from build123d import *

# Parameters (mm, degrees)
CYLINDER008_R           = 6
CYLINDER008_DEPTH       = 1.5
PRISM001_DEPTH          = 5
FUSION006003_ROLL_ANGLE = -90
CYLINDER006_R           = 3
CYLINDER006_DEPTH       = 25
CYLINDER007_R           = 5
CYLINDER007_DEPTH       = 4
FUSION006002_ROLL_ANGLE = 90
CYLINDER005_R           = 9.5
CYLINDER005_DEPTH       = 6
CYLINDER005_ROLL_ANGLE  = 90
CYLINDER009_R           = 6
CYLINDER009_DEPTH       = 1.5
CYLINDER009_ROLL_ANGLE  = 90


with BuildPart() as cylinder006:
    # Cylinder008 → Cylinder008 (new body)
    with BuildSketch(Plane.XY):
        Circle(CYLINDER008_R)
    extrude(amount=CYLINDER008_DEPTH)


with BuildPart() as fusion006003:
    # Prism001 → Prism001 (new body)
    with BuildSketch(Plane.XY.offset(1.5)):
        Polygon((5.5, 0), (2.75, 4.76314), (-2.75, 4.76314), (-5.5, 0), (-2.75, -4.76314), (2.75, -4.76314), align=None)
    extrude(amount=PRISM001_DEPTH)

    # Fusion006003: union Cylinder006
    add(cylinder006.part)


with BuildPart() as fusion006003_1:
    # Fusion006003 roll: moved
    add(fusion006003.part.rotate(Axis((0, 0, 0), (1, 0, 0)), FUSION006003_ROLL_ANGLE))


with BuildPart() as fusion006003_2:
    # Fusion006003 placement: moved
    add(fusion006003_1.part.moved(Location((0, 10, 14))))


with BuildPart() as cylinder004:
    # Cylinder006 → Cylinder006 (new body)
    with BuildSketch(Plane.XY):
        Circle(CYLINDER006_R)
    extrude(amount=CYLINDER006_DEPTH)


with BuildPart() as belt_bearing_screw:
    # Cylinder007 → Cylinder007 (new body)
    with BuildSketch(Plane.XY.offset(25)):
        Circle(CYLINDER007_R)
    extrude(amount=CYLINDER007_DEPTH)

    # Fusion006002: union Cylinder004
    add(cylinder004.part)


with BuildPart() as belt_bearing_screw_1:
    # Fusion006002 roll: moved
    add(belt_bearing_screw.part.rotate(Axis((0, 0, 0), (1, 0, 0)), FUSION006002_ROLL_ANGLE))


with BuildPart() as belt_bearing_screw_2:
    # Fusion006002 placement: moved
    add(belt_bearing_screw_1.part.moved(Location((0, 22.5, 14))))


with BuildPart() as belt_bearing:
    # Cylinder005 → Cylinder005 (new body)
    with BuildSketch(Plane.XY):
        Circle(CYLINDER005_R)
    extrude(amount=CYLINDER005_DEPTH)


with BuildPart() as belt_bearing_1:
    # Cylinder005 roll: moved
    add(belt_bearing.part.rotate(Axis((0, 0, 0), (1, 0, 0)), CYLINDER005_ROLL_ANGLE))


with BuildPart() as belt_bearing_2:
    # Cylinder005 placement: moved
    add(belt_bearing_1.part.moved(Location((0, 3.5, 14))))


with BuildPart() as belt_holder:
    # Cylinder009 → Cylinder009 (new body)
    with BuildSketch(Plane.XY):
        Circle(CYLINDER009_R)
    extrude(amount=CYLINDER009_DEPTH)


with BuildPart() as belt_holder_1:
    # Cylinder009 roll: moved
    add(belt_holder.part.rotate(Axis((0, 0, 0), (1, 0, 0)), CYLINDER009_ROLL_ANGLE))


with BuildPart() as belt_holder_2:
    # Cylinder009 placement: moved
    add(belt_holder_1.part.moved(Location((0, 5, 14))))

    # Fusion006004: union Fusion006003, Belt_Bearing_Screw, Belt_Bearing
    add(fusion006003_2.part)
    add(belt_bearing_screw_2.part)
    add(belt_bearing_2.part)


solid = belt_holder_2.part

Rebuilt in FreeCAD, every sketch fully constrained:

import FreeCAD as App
import Part
import Sketcher
Q = App.Units.Quantity


def add_polygon(sketch, points):
    """Adds a closed chain of lines whose ends are joined by coincident constraints."""
    first, n = sketch.GeometryCount, len(points)
    for a, b in zip(points, points[1:] + points[:1]):
        sketch.addGeometry(Part.LineSegment(App.Vector(*a, 0), App.Vector(*b, 0)), False)
    for i in range(n):
        sketch.addConstraint(Sketcher.Constraint("Coincident", first + i, 2, first + (i + 1) % n, 1))

doc = App.newDocument("Part")
body = doc.addObject("PartDesign::Body", "Body")

# Sketch on XY plane
sketch1 = body.newObject("Sketcher::SketchObject", "Sketch")
sketch1.AttachmentSupport = (doc.getObject("XY_Plane"), [""])
sketch1.MapMode = "FlatFace"
sketch1.addGeometry(Part.Circle(App.Vector(0, 0, 0), App.Vector(0, 0, 1), 6), False)
sketch1.addConstraint(Sketcher.Constraint("Coincident", 0, 3, -1, 1))
sketch1.addConstraint(Sketcher.Constraint("Diameter", 0, Q("12 mm")))
pad1 = body.newObject("PartDesign::Pad", "Pad")
pad1.Profile = sketch1
pad1.Length = 1.5
body2 = doc.addObject("PartDesign::Body", "Body001")

# Sketch on XY plane
sketch2 = body2.newObject("Sketcher::SketchObject", "Sketch001")
sketch2.AttachmentSupport = (doc.getObject("XY_Plane001"), [""])
sketch2.MapMode = "FlatFace"
sketch2.AttachmentOffset = App.Placement(App.Vector(0, 0, 1.5), App.Rotation())
add_polygon(sketch2, [(6, 0), (3, 5), (-3, 5), (-6, 0), (-3, -5), (3, -5)])  # lines 0-5
sketch2.addConstraint(Sketcher.Constraint("Horizontal", 1))
sketch2.addConstraint(Sketcher.Constraint("Horizontal", 4))
sketch2.addConstraint(Sketcher.Constraint("Symmetric", 0, 2, 3, 2, -1, 1))
sketch2.addConstraint(Sketcher.Constraint("Symmetric", 2, 2, 5, 2, -1, 1))
sketch2.addConstraint(Sketcher.Constraint("PointOnObject", 2, 2, -1))
sketch2.addConstraint(Sketcher.Constraint("Parallel", 2, 5))
sketch2.addConstraint(Sketcher.Constraint("Vertical", 1, 2, 3, 2))
sketch2.addConstraint(Sketcher.Constraint("Angle", 0, Q("119.999999 deg")))
sketch2.addConstraint(Sketcher.Constraint("DistanceX", 1, 2, 1, 1, Q("5.5 mm")))
sketch2.addConstraint(Sketcher.Constraint("DistanceX", 2, 2, 5, 2, Q("11 mm")))
pad2 = body2.newObject("PartDesign::Pad", "Pad001")
pad2.Profile = sketch2
pad2.Length = 5
doc.recompute()

boolean = body2.newObject("PartDesign::Boolean", "Boolean")
boolean.Type = "Fuse"
boolean.addObjects([body])
body3 = doc.addObject("PartDesign::Body", "Body002")
doc.recompute()

body2.Placement = App.Placement(App.Vector(0, 0, 0), App.Rotation(App.Vector(1, 0, 0), 270))
boolean2 = body3.newObject("PartDesign::Boolean", "Boolean001")
boolean2.Type = "Fuse"
boolean2.addObjects([body2])
body4 = doc.addObject("PartDesign::Body", "Body003")
doc.recompute()

body3.Placement = App.Placement(App.Vector(0, 10, 14), App.Rotation(App.Vector(0, 0, 1), 0))
boolean3 = body4.newObject("PartDesign::Boolean", "Boolean002")
boolean3.Type = "Fuse"
boolean3.addObjects([body3])
body5 = doc.addObject("PartDesign::Body", "Body004")

# Sketch on XY plane
sketch3 = body5.newObject("Sketcher::SketchObject", "Sketch002")
sketch3.AttachmentSupport = (doc.getObject("XY_Plane004"), [""])
sketch3.MapMode = "FlatFace"
sketch3.addGeometry(Part.Circle(App.Vector(0, 0, 0), App.Vector(0, 0, 1), 3), False)
sketch3.addConstraint(Sketcher.Constraint("Coincident", 0, 3, -1, 1))
sketch3.addConstraint(Sketcher.Constraint("Diameter", 0, Q("6 mm")))
pad3 = body5.newObject("PartDesign::Pad", "Pad002")
pad3.Profile = sketch3
pad3.Length = 25
body6 = doc.addObject("PartDesign::Body", "Body005")

# Sketch on XY plane
sketch4 = body6.newObject("Sketcher::SketchObject", "Sketch003")
sketch4.AttachmentSupport = (doc.getObject("XY_Plane005"), [""])
sketch4.MapMode = "FlatFace"
sketch4.AttachmentOffset = App.Placement(App.Vector(0, 0, 25), App.Rotation())
sketch4.addGeometry(Part.Circle(App.Vector(0, 0, 0), App.Vector(0, 0, 1), 5), False)
sketch4.addConstraint(Sketcher.Constraint("Coincident", 0, 3, -1, 1))
sketch4.addConstraint(Sketcher.Constraint("Diameter", 0, Q("10 mm")))
pad4 = body6.newObject("PartDesign::Pad", "Pad003")
pad4.Profile = sketch4
pad4.Length = 4
doc.recompute()

boolean4 = body6.newObject("PartDesign::Boolean", "Boolean003")
boolean4.Type = "Fuse"
boolean4.addObjects([body5])
body7 = doc.addObject("PartDesign::Body", "Body006")
doc.recompute()

body6.Placement = App.Placement(App.Vector(0, 0, 0), App.Rotation(App.Vector(1, 0, 0), 90))
boolean5 = body7.newObject("PartDesign::Boolean", "Boolean004")
boolean5.Type = "Fuse"
boolean5.addObjects([body6])
body8 = doc.addObject("PartDesign::Body", "Body007")
doc.recompute()

body7.Placement = App.Placement(App.Vector(0, 22.5, 14), App.Rotation(App.Vector(0, 0, 1), 0))
boolean6 = body8.newObject("PartDesign::Boolean", "Boolean005")
boolean6.Type = "Fuse"
boolean6.addObjects([body7])
body9 = doc.addObject("PartDesign::Body", "Body008")

# Sketch on XY plane
sketch5 = body9.newObject("Sketcher::SketchObject", "Sketch004")
sketch5.AttachmentSupport = (doc.getObject("XY_Plane008"), [""])
sketch5.MapMode = "FlatFace"
sketch5.addGeometry(Part.Circle(App.Vector(0, 0, 0), App.Vector(0, 0, 1), 10), False)
sketch5.addConstraint(Sketcher.Constraint("Coincident", 0, 3, -1, 1))
sketch5.addConstraint(Sketcher.Constraint("Diameter", 0, Q("19 mm")))
pad5 = body9.newObject("PartDesign::Pad", "Pad004")
pad5.Profile = sketch5
pad5.Length = 6
body10 = doc.addObject("PartDesign::Body", "Body009")
doc.recompute()

body9.Placement = App.Placement(App.Vector(0, 0, 0), App.Rotation(App.Vector(1, 0, 0), 90))
boolean7 = body10.newObject("PartDesign::Boolean", "Boolean006")
boolean7.Type = "Fuse"
boolean7.addObjects([body9])
body11 = doc.addObject("PartDesign::Body", "Body010")
doc.recompute()

body10.Placement = App.Placement(App.Vector(0, 3.5, 14), App.Rotation(App.Vector(0, 0, 1), 0))
boolean8 = body11.newObject("PartDesign::Boolean", "Boolean007")
boolean8.Type = "Fuse"
boolean8.addObjects([body10])
body12 = doc.addObject("PartDesign::Body", "Body011")

# Sketch on XY plane
sketch6 = body12.newObject("Sketcher::SketchObject", "Sketch005")
sketch6.AttachmentSupport = (doc.getObject("XY_Plane011"), [""])
sketch6.MapMode = "FlatFace"
sketch6.addGeometry(Part.Circle(App.Vector(0, 0, 0), App.Vector(0, 0, 1), 6), False)
sketch6.addConstraint(Sketcher.Constraint("Coincident", 0, 3, -1, 1))
sketch6.addConstraint(Sketcher.Constraint("Diameter", 0, Q("12 mm")))
pad6 = body12.newObject("PartDesign::Pad", "Pad005")
pad6.Profile = sketch6
pad6.Length = 1.5
body13 = doc.addObject("PartDesign::Body", "Body012")
doc.recompute()

body12.Placement = App.Placement(App.Vector(0, 0, 0), App.Rotation(App.Vector(1, 0, 0), 90))
boolean9 = body13.newObject("PartDesign::Boolean", "Boolean008")
boolean9.Type = "Fuse"
boolean9.addObjects([body12])
body14 = doc.addObject("PartDesign::Body", "Body013")
body14.AllowCompound = True
doc.recompute()

body13.Placement = App.Placement(App.Vector(0, 5, 14), App.Rotation(App.Vector(0, 0, 1), 0))
boolean10 = body14.newObject("PartDesign::Boolean", "Boolean009")
boolean10.Type = "Fuse"
boolean10.addObjects([body13])
doc.recompute()

boolean11 = body14.newObject("PartDesign::Boolean", "Boolean010")
boolean11.Type = "Fuse"
boolean11.addObjects([body4])
doc.recompute()

boolean12 = body14.newObject("PartDesign::Boolean", "Boolean011")
boolean12.Type = "Fuse"
boolean12.addObjects([body8])
doc.recompute()

boolean13 = body14.newObject("PartDesign::Boolean", "Boolean012")
boolean13.Type = "Fuse"
boolean13.addObjects([body11])

doc.recompute()
